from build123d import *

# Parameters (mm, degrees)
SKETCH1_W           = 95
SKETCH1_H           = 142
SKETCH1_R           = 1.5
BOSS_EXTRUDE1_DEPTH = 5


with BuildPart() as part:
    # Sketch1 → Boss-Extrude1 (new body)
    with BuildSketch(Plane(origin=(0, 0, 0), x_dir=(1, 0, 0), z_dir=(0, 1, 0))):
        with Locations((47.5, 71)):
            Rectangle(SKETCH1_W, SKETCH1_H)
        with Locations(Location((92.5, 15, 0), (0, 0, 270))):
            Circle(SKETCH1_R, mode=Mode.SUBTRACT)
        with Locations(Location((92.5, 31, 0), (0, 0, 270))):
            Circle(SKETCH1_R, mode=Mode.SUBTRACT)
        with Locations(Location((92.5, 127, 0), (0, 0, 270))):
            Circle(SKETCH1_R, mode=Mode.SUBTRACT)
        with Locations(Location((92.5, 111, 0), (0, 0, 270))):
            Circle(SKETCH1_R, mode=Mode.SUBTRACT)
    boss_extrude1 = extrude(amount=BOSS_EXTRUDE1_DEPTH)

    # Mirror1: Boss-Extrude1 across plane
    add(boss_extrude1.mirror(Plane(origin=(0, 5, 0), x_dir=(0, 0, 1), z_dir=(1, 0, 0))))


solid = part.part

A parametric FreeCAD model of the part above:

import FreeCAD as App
import Part
import Sketcher
from FreeCAD import Vector


def add_polygon(sketch, points):
    """Adds a closed chain of lines whose ends are joined by coincident constraints."""
    first, n = sketch.GeometryCount, len(points)
    for a, b in zip(points, points[1:] + points[:1]):
        sketch.addGeometry(Part.LineSegment(App.Vector(*a, 0), App.Vector(*b, 0)), False)
    for i in range(n):
        sketch.addConstraint(Sketcher.Constraint("Coincident", first + i, 2, first + (i + 1) % n, 1))

doc = App.newDocument("Part")
params = doc.addObject("Spreadsheet::Sheet", "Params")
for row, (alias, value) in enumerate([
    ("sketch1_diameter", "3 mm"),
    ("sketch1_width", "95 mm"),
    ("sketch1_height", "142 mm"),
    ("pad1_length", "5 mm"),
], start=1):
    params.set(f"A{row}", alias)
    params.set(f"B{row}", "=" + value)
    params.setAlias(f"B{row}", alias)

body = doc.addObject("PartDesign::Body", "Body")

sketch1 = body.newObject("Sketcher::SketchObject", "Sketch")
sketch1.AttachmentSupport = (doc.getObject("XZ_Plane"), [""])
sketch1.MapMode = "FlatFace"
add_polygon(sketch1, [(0, -142), (0, 0), (95, 0), (95, -142)])
sketch1.addGeometry(Part.Circle(Vector(92.5, -15, 0), Vector(0, 0, 1), 1.5), False)
sketch1.addGeometry(Part.Circle(Vector(92.5, -31, 0), Vector(0, 0, 1), 1.5), False)
sketch1.addGeometry(Part.Circle(Vector(92.5, -111, 0), Vector(0, 0, 1), 1.5), False)
sketch1.addGeometry(Part.Circle(Vector(92.5, -127, 0), Vector(0, 0, 1), 1.5), False)
sketch1.addConstraint(Sketcher.Constraint("Vertical", 0))
sketch1.addConstraint(Sketcher.Constraint("Horizontal", 1))
sketch1.addConstraint(Sketcher.Constraint("Vertical", 2))
sketch1.addConstraint(Sketcher.Constraint("Horizontal", 3))
sketch1.addConstraint(Sketcher.Constraint("Coincident", 0, 2, -1, 1))
sketch1.addConstraint(Sketcher.Constraint("Equal", 4, 5))
sketch1.addConstraint(Sketcher.Constraint("Equal", 5, 6))
sketch1.addConstraint(Sketcher.Constraint("Equal", 6, 7))
sketch1.addConstraint(Sketcher.Constraint("Vertical", 4, 3, 5, 3))
sketch1.addConstraint(Sketcher.Constraint("Vertical", 5, 3, 6, 3))
sketch1.addConstraint(Sketcher.Constraint("Vertical", 6, 3, 7, 3))
sketch1.addConstraint(Sketcher.Constraint("Diameter", 4, 3.0))
sketch1.addConstraint(Sketcher.Constraint("DistanceX", 1, 1, 1, 2, 95.0))
sketch1.addConstraint(Sketcher.Constraint("DistanceY", 0, 1, 0, 2, 142.0))
sketch1.addConstraint(Sketcher.Constraint("DistanceY", 4, 3, -1, 1, 15.0))
sketch1.addConstraint(Sketcher.Constraint("DistanceY", 5, 3, -1, 1, 31.0))
sketch1.addConstraint(Sketcher.Constraint("DistanceY", 6, 3, -1, 1, 111.0))
sketch1.addConstraint(Sketcher.Constraint("DistanceY", 7, 3, -1, 1, 127.0))
sketch1.addConstraint(Sketcher.Constraint("DistanceX", -1, 1, 4, 3, 92.5))
sketch1.setExpression("Constraints[15]", "Params.sketch1_diameter")
sketch1.setExpression("Constraints[16]", "Params.sketch1_width")
sketch1.setExpression("Constraints[17]", "Params.sketch1_height")
pad1 = body.newObject("PartDesign::Pad", "Pad")
pad1.Profile = sketch1
pad1.setExpression("Length", "Params.pad1_length")
pad1.Reversed = True
doc.recompute()

mirrored = body.newObject("PartDesign::Mirrored", "Mirrored")
mirrored.Originals = [pad1]
mirrored.MirrorPlane = (doc.getObject("YZ_Plane"), [""])
body.Tip = mirrored

doc.recompute()
